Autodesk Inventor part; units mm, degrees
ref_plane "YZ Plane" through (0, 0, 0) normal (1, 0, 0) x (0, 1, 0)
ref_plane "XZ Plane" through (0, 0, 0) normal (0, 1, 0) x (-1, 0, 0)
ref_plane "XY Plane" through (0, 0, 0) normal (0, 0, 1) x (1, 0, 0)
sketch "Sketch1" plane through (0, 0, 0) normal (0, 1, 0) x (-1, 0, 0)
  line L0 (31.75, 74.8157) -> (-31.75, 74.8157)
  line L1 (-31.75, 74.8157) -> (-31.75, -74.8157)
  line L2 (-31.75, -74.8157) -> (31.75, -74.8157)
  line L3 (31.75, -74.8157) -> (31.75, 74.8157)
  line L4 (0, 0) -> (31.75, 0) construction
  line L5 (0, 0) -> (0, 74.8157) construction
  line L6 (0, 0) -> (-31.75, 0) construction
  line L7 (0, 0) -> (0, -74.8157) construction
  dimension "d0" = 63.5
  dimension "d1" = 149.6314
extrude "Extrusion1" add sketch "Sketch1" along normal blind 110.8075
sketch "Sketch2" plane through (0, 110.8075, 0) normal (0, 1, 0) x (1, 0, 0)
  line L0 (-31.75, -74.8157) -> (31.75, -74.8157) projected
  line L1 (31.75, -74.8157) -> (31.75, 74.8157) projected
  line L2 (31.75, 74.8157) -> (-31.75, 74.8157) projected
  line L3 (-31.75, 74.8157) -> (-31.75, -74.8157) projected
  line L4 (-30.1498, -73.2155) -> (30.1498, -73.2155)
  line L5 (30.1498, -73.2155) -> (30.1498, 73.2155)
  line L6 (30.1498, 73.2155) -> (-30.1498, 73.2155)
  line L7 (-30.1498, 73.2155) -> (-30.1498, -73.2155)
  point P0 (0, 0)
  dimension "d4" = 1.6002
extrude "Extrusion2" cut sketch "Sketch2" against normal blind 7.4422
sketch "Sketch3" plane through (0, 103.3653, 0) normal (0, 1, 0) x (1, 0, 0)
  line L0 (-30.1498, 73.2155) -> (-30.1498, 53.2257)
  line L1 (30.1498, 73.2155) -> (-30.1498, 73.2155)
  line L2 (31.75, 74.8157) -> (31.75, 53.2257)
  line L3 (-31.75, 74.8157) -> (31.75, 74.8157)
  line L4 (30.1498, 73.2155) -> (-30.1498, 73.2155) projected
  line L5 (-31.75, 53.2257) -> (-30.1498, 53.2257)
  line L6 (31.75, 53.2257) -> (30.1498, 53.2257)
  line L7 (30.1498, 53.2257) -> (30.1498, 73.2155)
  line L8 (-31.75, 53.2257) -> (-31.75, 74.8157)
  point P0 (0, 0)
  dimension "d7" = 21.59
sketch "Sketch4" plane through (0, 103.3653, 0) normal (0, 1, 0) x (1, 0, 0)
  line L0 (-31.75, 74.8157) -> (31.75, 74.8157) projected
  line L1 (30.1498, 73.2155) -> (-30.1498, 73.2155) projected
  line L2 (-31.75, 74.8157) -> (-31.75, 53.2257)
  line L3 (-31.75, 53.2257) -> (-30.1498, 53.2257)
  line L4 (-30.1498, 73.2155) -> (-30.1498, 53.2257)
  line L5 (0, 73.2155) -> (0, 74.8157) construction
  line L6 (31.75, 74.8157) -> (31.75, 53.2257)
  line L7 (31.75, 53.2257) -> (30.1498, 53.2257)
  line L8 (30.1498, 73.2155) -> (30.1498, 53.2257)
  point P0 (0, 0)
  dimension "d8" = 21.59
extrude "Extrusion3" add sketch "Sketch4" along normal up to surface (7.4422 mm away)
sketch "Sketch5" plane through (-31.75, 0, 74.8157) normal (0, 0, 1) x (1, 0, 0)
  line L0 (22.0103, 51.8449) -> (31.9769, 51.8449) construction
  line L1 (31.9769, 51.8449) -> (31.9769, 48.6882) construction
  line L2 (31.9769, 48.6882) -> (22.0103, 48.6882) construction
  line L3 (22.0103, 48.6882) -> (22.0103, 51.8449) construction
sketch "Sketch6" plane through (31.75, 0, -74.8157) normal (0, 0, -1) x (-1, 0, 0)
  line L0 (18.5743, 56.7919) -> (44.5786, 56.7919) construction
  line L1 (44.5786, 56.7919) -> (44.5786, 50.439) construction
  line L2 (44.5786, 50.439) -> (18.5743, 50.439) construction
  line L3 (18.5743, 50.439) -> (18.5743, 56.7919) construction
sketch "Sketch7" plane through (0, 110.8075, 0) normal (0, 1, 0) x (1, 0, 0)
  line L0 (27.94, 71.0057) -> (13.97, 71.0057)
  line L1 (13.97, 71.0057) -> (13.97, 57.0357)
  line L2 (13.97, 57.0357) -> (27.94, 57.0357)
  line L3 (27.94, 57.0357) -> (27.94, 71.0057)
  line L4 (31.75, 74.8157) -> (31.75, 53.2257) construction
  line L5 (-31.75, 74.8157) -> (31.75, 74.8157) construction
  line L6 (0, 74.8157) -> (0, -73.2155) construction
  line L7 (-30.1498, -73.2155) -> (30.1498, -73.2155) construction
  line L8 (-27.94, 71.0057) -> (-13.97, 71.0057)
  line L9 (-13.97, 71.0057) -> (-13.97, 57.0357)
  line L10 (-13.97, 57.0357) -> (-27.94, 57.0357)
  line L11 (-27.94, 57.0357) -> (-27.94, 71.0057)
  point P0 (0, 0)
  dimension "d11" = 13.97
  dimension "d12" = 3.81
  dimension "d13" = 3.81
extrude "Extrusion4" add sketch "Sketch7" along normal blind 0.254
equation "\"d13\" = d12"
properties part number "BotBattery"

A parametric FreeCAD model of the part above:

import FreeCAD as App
import Part
import Sketcher
Q = App.Units.Quantity

doc = App.newDocument("Part")
body = doc.addObject("PartDesign::Body", "Body")

sketch1 = body.newObject("Sketcher::SketchObject", "Sketch")
sketch1.AttachmentSupport = (doc.getObject("XZ_Plane"), [""])
sketch1.MapMode = "FlatFace"
sketch1.addGeometry([
    Part.LineSegment(App.Vector(-32, -75, 0), App.Vector(-32, 75, 0)),
    Part.LineSegment(App.Vector(-32, 75, 0), App.Vector(32, 75, 0)),
    Part.LineSegment(App.Vector(32, 75, 0), App.Vector(32, -75, 0)),
    Part.LineSegment(App.Vector(32, -75, 0), App.Vector(-32, -75, 0)),
], False)
sketch1.addConstraint([
    Sketcher.Constraint("Coincident", 0, 2, 1, 1),
    Sketcher.Constraint("Coincident", 1, 2, 2, 1),
    Sketcher.Constraint("Coincident", 2, 2, 3, 1),
    Sketcher.Constraint("Coincident", 3, 2, 0, 1),
    Sketcher.Constraint("Vertical", 0),
    Sketcher.Constraint("Horizontal", 1),
    Sketcher.Constraint("Vertical", 2),
    Sketcher.Constraint("Horizontal", 3),
    Sketcher.Constraint("Symmetric", 0, 2, 2, 2, -1, 1),
    Sketcher.Constraint("DistanceX", 1, 1, 1, 2, Q("2.5 in")),
    Sketcher.Constraint("DistanceY", 0, 1, 0, 2, Q("5.891 in")),
])
pad1 = body.newObject("PartDesign::Pad", "Pad")
pad1.Profile = sketch1
pad1.Length = Q("4.3625 in")
pad1.Reversed = True

sketch2 = body.newObject("Sketcher::SketchObject", "Sketch001")
sketch2.AttachmentSupport = (doc.getObject("XZ_Plane"), [""])
sketch2.MapMode = "FlatFace"
sketch2.AttachmentOffset = App.Placement(App.Vector(0, 0, -4.3625 * 25.4), App.Rotation())
sketch2.addGeometry([
    Part.LineSegment(App.Vector(-32, -75, 0), App.Vector(-32, 75, 0)),
    Part.LineSegment(App.Vector(-32, 75, 0), App.Vector(32, 75, 0)),
    Part.LineSegment(App.Vector(32, 75, 0), App.Vector(32, -75, 0)),
    Part.LineSegment(App.Vector(32, -75, 0), App.Vector(-32, -75, 0)),
    Part.LineSegment(App.Vector(30, 73, 0), App.Vector(-30, 73, 0)),
    Part.LineSegment(App.Vector(-30, 73, 0), App.Vector(-30, -73, 0)),
    Part.LineSegment(App.Vector(-30, -73, 0), App.Vector(30, -73, 0)),
    Part.LineSegment(App.Vector(30, -73, 0), App.Vector(30, 73, 0)),
], False)
sketch2.addConstraint([
    Sketcher.Constraint("Coincident", 0, 2, 1, 1),
    Sketcher.Constraint("Coincident", 1, 2, 2, 1),
    Sketcher.Constraint("Coincident", 2, 2, 3, 1),
    Sketcher.Constraint("Coincident", 3, 2, 0, 1),
    Sketcher.Constraint("Coincident", 4, 2, 5, 1),
    Sketcher.Constraint("Coincident", 5, 2, 6, 1),
    Sketcher.Constraint("Coincident", 6, 2, 7, 1),
    Sketcher.Constraint("Coincident", 7, 2, 4, 1),
    Sketcher.Constraint("Vertical", 0),
    Sketcher.Constraint("Horizontal", 1),
    Sketcher.Constraint("Vertical", 2),
    Sketcher.Constraint("Horizontal", 3),
    Sketcher.Constraint("Horizontal", 4),
    Sketcher.Constraint("Vertical", 5),
    Sketcher.Constraint("Horizontal", 6),
    Sketcher.Constraint("Vertical", 7),
    Sketcher.Constraint("Symmetric", 0, 2, 2, 2, -1, 1),
    Sketcher.Constraint("Symmetric", 4, 2, 6, 2, -1, 1),
    Sketcher.Constraint("DistanceX", 1, 1, 1, 2, Q("2.5 in")),
    Sketcher.Constraint("DistanceX", 0, 2, 4, 2, Q("0.063 in")),
    Sketcher.Constraint("DistanceY", 4, 2, 0, 2, Q("0.063 in")),
    Sketcher.Constraint("DistanceY", 0, 1, 0, 2, Q("5.891 in")),
])
pocket1 = body.newObject("PartDesign::Pocket", "Pocket")
pocket1.Profile = sketch2
pocket1.Length = Q("0.293 in")
pocket1.Reversed = True

sketch3 = body.newObject("Sketcher::SketchObject", "Sketch002")
sketch3.AttachmentSupport = (doc.getObject("XZ_Plane"), [""])
sketch3.MapMode = "FlatFace"
sketch3.AttachmentOffset = App.Placement(App.Vector(0, 0, -4.0695 * 25.4), App.Rotation())
sketch3.addGeometry([
    Part.LineSegment(App.Vector(31.8, -74.8, 0), App.Vector(-31.8, -74.8, 0)),
    Part.LineSegment(App.Vector(-31.8, -74.8, 0), App.Vector(-31.8, -53.2, 0)),
    Part.LineSegment(App.Vector(-31.8, -53.2, 0), App.Vector(-30.1, -53.2, 0)),
    Part.LineSegment(App.Vector(-30.1, -53.2, 0), App.Vector(-30.1, -73.2, 0)),
    Part.LineSegment(App.Vector(-30.1, -73.2, 0), App.Vector(30.1, -73.2, 0)),
    Part.LineSegment(App.Vector(30.1, -73.2, 0), App.Vector(30.1, -53.2, 0)),
    Part.LineSegment(App.Vector(30.1, -53.2, 0), App.Vector(31.8, -53.2, 0)),
    Part.LineSegment(App.Vector(31.8, -53.2, 0), App.Vector(31.8, -74.8, 0)),
], False)
sketch3.addConstraint([
    Sketcher.Constraint("Coincident", 0, 2, 1, 1),
    Sketcher.Constraint("Coincident", 1, 2, 2, 1),
    Sketcher.Constraint("Coincident", 2, 2, 3, 1),
    Sketcher.Constraint("Coincident", 3, 2, 4, 1),
    Sketcher.Constraint("Coincident", 4, 2, 5, 1),
    Sketcher.Constraint("Coincident", 5, 2, 6, 1),
    Sketcher.Constraint("Coincident", 6, 2, 7, 1),
    Sketcher.Constraint("Coincident", 7, 2, 0, 1),
    Sketcher.Constraint("Horizontal", 0),
    Sketcher.Constraint("Vertical", 1),
    Sketcher.Constraint("Horizontal", 2),
    Sketcher.Constraint("Vertical", 3),
    Sketcher.Constraint("Horizontal", 4),
    Sketcher.Constraint("Vertical", 5),
    Sketcher.Constraint("Horizontal", 6),
    Sketcher.Constraint("Vertical", 7),
    Sketcher.Constraint("Symmetric", 2, 2, 5, 2, -2),
    Sketcher.Constraint("Equal", 2, 6),
    Sketcher.Constraint("DistanceY", 1, 1, 1, 2, Q("0.85 in")),
    Sketcher.Constraint("DistanceX", 0, 2, 0, 1, Q("2.5 in")),
    Sketcher.Constraint("DistanceX", 2, 1, 2, 2, Q("0.063 in")),
    Sketcher.Constraint("DistanceY", 3, 2, 3, 1, Q("0.787 in")),
    Sketcher.Constraint("DistanceY", 0, 2, -1, 1, Q("2.9455 in")),
])
pad2 = body.newObject("PartDesign::Pad", "Pad001")
pad2.Profile = sketch3
pad2.Length = Q("0.293 in")
pad2.Reversed = True

sketch4 = body.newObject("Sketcher::SketchObject", "Sketch003")
sketch4.AttachmentSupport = (doc.getObject("XZ_Plane"), [""])
sketch4.MapMode = "FlatFace"
sketch4.AttachmentOffset = App.Placement(App.Vector(0, 0, -4.3625 * 25.4), App.Rotation())
sketch4.addGeometry([
    Part.LineSegment(App.Vector(28, -57, 0), App.Vector(28, -71, 0)),
    Part.LineSegment(App.Vector(28, -71, 0), App.Vector(14, -71, 0)),
    Part.LineSegment(App.Vector(14, -71, 0), App.Vector(14, -57, 0)),
    Part.LineSegment(App.Vector(14, -57, 0), App.Vector(28, -57, 0)),
    Part.LineSegment(App.Vector(-14, -71, 0), App.Vector(-28, -71, 0)),
    Part.LineSegment(App.Vector(-28, -71, 0), App.Vector(-28, -57, 0)),
    Part.LineSegment(App.Vector(-28, -57, 0), App.Vector(-14, -57, 0)),
    Part.LineSegment(App.Vector(-14, -57, 0), App.Vector(-14, -71, 0)),
], False)
sketch4.addConstraint([
    Sketcher.Constraint("Coincident", 0, 2, 1, 1),
    Sketcher.Constraint("Coincident", 1, 2, 2, 1),
    Sketcher.Constraint("Coincident", 2, 2, 3, 1),
    Sketcher.Constraint("Coincident", 3, 2, 0, 1),
    Sketcher.Constraint("Coincident", 4, 2, 5, 1),
    Sketcher.Constraint("Coincident", 5, 2, 6, 1),
    Sketcher.Constraint("Coincident", 6, 2, 7, 1),
    Sketcher.Constraint("Coincident", 7, 2, 4, 1),
    Sketcher.Constraint("Vertical", 0),
    Sketcher.Constraint("Horizontal", 1),
    Sketcher.Constraint("Vertical", 2),
    Sketcher.Constraint("Horizontal", 3),
    Sketcher.Constraint("Horizontal", 4),
    Sketcher.Constraint("Vertical", 5),
    Sketcher.Constraint("Horizontal", 6),
    Sketcher.Constraint("Vertical", 7),
    Sketcher.Constraint("Symmetric", 0, 2, 4, 2, -2),
    Sketcher.Constraint("Symmetric", 2, 2, 6, 2, -2),
    Sketcher.Constraint("Equal", 6, 0),
    Sketcher.Constraint("DistanceX", 1, 2, 1, 1, Q("0.55 in")),
    Sketcher.Constraint("DistanceX", -1, 1, 1, 2, Q("0.55 in")),
    Sketcher.Constraint("DistanceY", 0, 2, -1, 1, Q("2.7955 in")),
])
pad3 = body.newObject("PartDesign::Pad", "Pad002")
pad3.Profile = sketch4
pad3.Length = Q("0.01 in")
pad3.Reversed = True

doc.recompute()
